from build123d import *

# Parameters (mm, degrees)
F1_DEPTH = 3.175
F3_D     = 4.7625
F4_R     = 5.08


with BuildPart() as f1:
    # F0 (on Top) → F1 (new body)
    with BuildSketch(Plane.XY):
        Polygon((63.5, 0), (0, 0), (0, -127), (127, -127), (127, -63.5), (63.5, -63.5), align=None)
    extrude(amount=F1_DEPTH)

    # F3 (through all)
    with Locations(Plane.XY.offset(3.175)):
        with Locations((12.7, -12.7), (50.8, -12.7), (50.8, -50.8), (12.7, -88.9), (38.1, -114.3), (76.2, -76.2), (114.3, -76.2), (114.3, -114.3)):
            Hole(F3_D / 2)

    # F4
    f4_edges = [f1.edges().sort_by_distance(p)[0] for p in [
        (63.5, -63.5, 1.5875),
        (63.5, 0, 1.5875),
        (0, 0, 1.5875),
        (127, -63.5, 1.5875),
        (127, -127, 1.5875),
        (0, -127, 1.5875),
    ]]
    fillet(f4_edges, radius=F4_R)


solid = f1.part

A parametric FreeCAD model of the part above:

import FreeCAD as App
import Part
import Sketcher
from FreeCAD import Vector
Q = App.Units.Quantity


def edges_at(feature, points):
    """Names of the edges that pass closest to the given points."""
    edges = feature.Shape.Edges
    near = lambda p: min(range(len(edges)), key=lambda i: edges[i].distToShape(Part.Vertex(*p))[0])
    return sorted({f"Edge{near(p) + 1}" for p in points})


def add_polygon(sketch, points):
    """Adds a closed chain of lines whose ends are joined by coincident constraints."""
    first, n = sketch.GeometryCount, len(points)
    for a, b in zip(points, points[1:] + points[:1]):
        sketch.addGeometry(Part.LineSegment(App.Vector(*a, 0), App.Vector(*b, 0)), False)
    for i in range(n):
        sketch.addConstraint(Sketcher.Constraint("Coincident", first + i, 2, first + (i + 1) % n, 1))

doc = App.newDocument("Part")
body = doc.addObject("PartDesign::Body", "Body")

# Sketch on XY plane
sketch1 = body.newObject("Sketcher::SketchObject", "Sketch")
sketch1.AttachmentSupport = (doc.getObject("XY_Plane"), [""])
sketch1.MapMode = "FlatFace"
add_polygon(sketch1, [(64, 0), (0, 0), (0, -127), (127, -127), (127, -64), (64, -64)])  # lines 0-5
sketch1.addConstraint(Sketcher.Constraint("Horizontal", 0))
sketch1.addConstraint(Sketcher.Constraint("Vertical", 1))
sketch1.addConstraint(Sketcher.Constraint("Horizontal", 2))
sketch1.addConstraint(Sketcher.Constraint("Vertical", 3))
sketch1.addConstraint(Sketcher.Constraint("Horizontal", 4))
sketch1.addConstraint(Sketcher.Constraint("Vertical", 5))
sketch1.addConstraint(Sketcher.Constraint("Coincident", 0, 2, -1, 1))
sketch1.addConstraint(Sketcher.Constraint("Equal", 0, 4))
sketch1.addConstraint(Sketcher.Constraint("Equal", 2, 1))
sketch1.addConstraint(Sketcher.Constraint("Equal", 4, 3))
sketch1.addConstraint(Sketcher.Constraint("DistanceX", 2, 1, 2, 2, Q("5 in")))
pad1 = body.newObject("PartDesign::Pad", "Pad")
pad1.Profile = sketch1
pad1.Length = Q("0.125 in")

# Sketch on XY plane
sketch2 = body.newObject("Sketcher::SketchObject", "Sketch001")
sketch2.AttachmentSupport = (doc.getObject("XY_Plane"), [""])
sketch2.MapMode = "FlatFace"
sketch2.AttachmentOffset = App.Placement(Vector(0, 0, 0.125 * 25.4), App.Rotation())
sketch2.addGeometry(Part.Circle(Vector(12.7, -12.7, 0), Vector(0, 0, 1), 2.4), False)
sketch2.addGeometry(Part.Circle(Vector(50.8, -12.7, 0), Vector(0, 0, 1), 2.4), False)
sketch2.addGeometry(Part.Circle(Vector(50.8, -50.8, 0), Vector(0, 0, 1), 2.4), False)
sketch2.addGeometry(Part.Circle(Vector(12.7, -88.9, 0), Vector(0, 0, 1), 2.4), False)
sketch2.addGeometry(Part.Circle(Vector(38.1, -114.3, 0), Vector(0, 0, 1), 2.4), False)
sketch2.addGeometry(Part.Circle(Vector(76.2, -76.2, 0), Vector(0, 0, 1), 2.4), False)
sketch2.addGeometry(Part.Circle(Vector(114.3, -76.2, 0), Vector(0, 0, 1), 2.4), False)
sketch2.addGeometry(Part.Circle(Vector(114.3, -114.3, 0), Vector(0, 0, 1), 2.4), False)
sketch2.addConstraint(Sketcher.Constraint("Equal", 0, 1))
sketch2.addConstraint(Sketcher.Constraint("Equal", 1, 2))
sketch2.addConstraint(Sketcher.Constraint("Equal", 2, 3))
sketch2.addConstraint(Sketcher.Constraint("Equal", 3, 4))
sketch2.addConstraint(Sketcher.Constraint("Equal", 4, 5))
sketch2.addConstraint(Sketcher.Constraint("Equal", 5, 6))
sketch2.addConstraint(Sketcher.Constraint("Equal", 6, 7))
sketch2.addConstraint(Sketcher.Constraint("Horizontal", 0, 3, 1, 3))
sketch2.addConstraint(Sketcher.Constraint("Horizontal", 5, 3, 6, 3))
sketch2.addConstraint(Sketcher.Constraint("Horizontal", 4, 3, 7, 3))
sketch2.addConstraint(Sketcher.Constraint("Vertical", 1, 3, 2, 3))
sketch2.addConstraint(Sketcher.Constraint("Vertical", 0, 3, 3, 3))
sketch2.addConstraint(Sketcher.Constraint("Vertical", 6, 3, 7, 3))
sketch2.addConstraint(Sketcher.Constraint("Diameter", 0, Q("0.1875 in")))
sketch2.addConstraint(Sketcher.Constraint("DistanceX", -1, 1, 1, 3, Q("2 in")))
sketch2.addConstraint(Sketcher.Constraint("DistanceY", 2, 3, -1, 1, Q("2 in")))
sketch2.addConstraint(Sketcher.Constraint("DistanceX", -1, 1, 5, 3, Q("3 in")))
sketch2.addConstraint(Sketcher.Constraint("DistanceY", 5, 3, -1, 1, Q("3 in")))
sketch2.addConstraint(Sketcher.Constraint("DistanceY", 3, 3, 0, 3, Q("3 in")))
sketch2.addConstraint(Sketcher.Constraint("DistanceX", 3, 3, 4, 3, Q("1 in")))
sketch2.addConstraint(Sketcher.Constraint("DistanceY", 4, 3, 3, 3, Q("1 in")))
sketch2.addConstraint(Sketcher.Constraint("DistanceX", 4, 3, 6, 3, Q("3 in")))
sketch2.addConstraint(Sketcher.Constraint("DistanceX", -1, 1, 0, 3, Q("0.5 in")))
sketch2.addConstraint(Sketcher.Constraint("DistanceY", 0, 3, -1, 1, Q("0.5 in")))
doc.recompute()
hole = body.newObject("PartDesign::Hole", "Hole")
hole.Profile = sketch2
hole.ThreadType = "None"
hole.Diameter = Q("0.1875 in")
hole.DepthType = "ThroughAll"
doc.recompute()

fillet = body.newObject("PartDesign::Fillet", "Fillet")
fillet.Base = (hole, edges_at(hole, [
    (63.5, -63.5, 1.587),
    (63.5, 0, 1.587),
    (0, 0, 1.587),
    (127, -63.5, 1.587),
    (127, -127, 1.587),
    (0, -127, 1.587),
]))
fillet.Radius = Q("0.2 in")

doc.recompute()
